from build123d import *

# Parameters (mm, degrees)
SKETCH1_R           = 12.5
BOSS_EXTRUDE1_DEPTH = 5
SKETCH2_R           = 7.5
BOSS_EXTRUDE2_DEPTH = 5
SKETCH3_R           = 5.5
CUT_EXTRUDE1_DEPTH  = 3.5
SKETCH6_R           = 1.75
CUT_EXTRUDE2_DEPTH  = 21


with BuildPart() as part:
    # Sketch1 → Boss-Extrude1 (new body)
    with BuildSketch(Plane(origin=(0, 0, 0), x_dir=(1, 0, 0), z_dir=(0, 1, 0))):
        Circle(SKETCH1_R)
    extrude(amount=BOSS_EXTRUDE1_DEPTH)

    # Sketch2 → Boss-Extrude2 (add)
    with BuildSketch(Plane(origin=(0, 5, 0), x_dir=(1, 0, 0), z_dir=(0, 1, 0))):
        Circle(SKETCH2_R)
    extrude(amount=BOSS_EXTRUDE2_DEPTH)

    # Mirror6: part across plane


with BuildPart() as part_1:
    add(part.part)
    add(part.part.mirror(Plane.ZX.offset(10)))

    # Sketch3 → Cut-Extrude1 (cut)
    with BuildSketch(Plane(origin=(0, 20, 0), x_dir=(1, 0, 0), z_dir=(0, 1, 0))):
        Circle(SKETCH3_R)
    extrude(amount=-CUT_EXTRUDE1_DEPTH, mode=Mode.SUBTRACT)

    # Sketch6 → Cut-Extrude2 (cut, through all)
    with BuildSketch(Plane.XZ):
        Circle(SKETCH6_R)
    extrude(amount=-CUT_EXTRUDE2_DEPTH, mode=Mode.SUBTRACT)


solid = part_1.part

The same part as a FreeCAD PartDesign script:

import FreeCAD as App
import Part
import Sketcher

V = App.Vector

doc = App.newDocument("Part")
body = doc.addObject("PartDesign::Body", "Body")

# Sketch on XZ plane
sketch1 = body.newObject("Sketcher::SketchObject", "Sketch")
sketch1.AttachmentSupport = (doc.getObject("XZ_Plane"), [""])
sketch1.MapMode = "FlatFace"
sketch1.addGeometry(Part.Circle(V(0, 0, 0), V(0, 0, 1), 12), False)
sketch1.addConstraint([
    Sketcher.Constraint("Coincident", 0, 3, -1, 1),
    Sketcher.Constraint("Diameter", 0, 25.0),
])
pad1 = body.newObject("PartDesign::Pad", "Pad")
pad1.Profile = sketch1
pad1.Length = 5
pad1.Reversed = True

# Sketch on XZ plane
sketch2 = body.newObject("Sketcher::SketchObject", "Sketch001")
sketch2.AttachmentSupport = (doc.getObject("XZ_Plane"), [""])
sketch2.MapMode = "FlatFace"
sketch2.AttachmentOffset = App.Placement(V(0, 0, -5), App.Rotation())
sketch2.addGeometry(Part.Circle(V(0, 0, 0), V(0, 0, 1), 8), False)
sketch2.addConstraint([
    Sketcher.Constraint("Coincident", 0, 3, -1, 1),
    Sketcher.Constraint("Diameter", 0, 15.0),
])
pad2 = body.newObject("PartDesign::Pad", "Pad001")
pad2.Profile = sketch2
pad2.Length = 5
pad2.Reversed = True
body2 = doc.addObject("PartDesign::Body", "Body001")
doc.recompute()

body2.BaseFeature = body
doc.recompute()

mirroring = doc.addObject("Part::Mirroring", "Mirroring")
mirroring.Source = body
mirroring.Base = V(0, 10, 0)
mirroring.Normal = V(0, 1, 0)
body3 = doc.addObject("PartDesign::Body", "Body002")
body3.BaseFeature = mirroring
boolean = body2.newObject("PartDesign::Boolean", "Boolean")
boolean.Type = "Fuse"
boolean.addObjects([body3])
doc.recompute()

# Sketch on XZ plane
sketch3 = body2.newObject("Sketcher::SketchObject", "Sketch002")
sketch3.AttachmentSupport = (doc.getObject("XZ_Plane001"), [""])
sketch3.MapMode = "FlatFace"
sketch3.AttachmentOffset = App.Placement(V(0, 0, -20), App.Rotation())
sketch3.addGeometry(Part.Circle(V(0, 0, 0), V(0, 0, 1), 6), False)
sketch3.addConstraint([
    Sketcher.Constraint("Coincident", 0, 3, -1, 1),
    Sketcher.Constraint("Diameter", 0, 11.0),
])
pocket1 = body2.newObject("PartDesign::Pocket", "Pocket")
pocket1.Profile = sketch3
pocket1.Length = 3.5
pocket1.Reversed = True

# Sketch on XZ plane
sketch4 = body2.newObject("Sketcher::SketchObject", "Sketch003")
sketch4.AttachmentSupport = (doc.getObject("XZ_Plane001"), [""])
sketch4.MapMode = "FlatFace"
sketch4.addGeometry(Part.Circle(V(0, 0, 0), V(0, 0, 1), 1.8), False)
sketch4.addConstraint([
    Sketcher.Constraint("Coincident", 0, 3, -1, 1),
    Sketcher.Constraint("Diameter", 0, 3.5),
])
pocket2 = body2.newObject("PartDesign::Pocket", "Pocket001")
pocket2.Profile = sketch4
pocket2.Type = "ThroughAll"
mirroring.Visibility = False

doc.recompute()
